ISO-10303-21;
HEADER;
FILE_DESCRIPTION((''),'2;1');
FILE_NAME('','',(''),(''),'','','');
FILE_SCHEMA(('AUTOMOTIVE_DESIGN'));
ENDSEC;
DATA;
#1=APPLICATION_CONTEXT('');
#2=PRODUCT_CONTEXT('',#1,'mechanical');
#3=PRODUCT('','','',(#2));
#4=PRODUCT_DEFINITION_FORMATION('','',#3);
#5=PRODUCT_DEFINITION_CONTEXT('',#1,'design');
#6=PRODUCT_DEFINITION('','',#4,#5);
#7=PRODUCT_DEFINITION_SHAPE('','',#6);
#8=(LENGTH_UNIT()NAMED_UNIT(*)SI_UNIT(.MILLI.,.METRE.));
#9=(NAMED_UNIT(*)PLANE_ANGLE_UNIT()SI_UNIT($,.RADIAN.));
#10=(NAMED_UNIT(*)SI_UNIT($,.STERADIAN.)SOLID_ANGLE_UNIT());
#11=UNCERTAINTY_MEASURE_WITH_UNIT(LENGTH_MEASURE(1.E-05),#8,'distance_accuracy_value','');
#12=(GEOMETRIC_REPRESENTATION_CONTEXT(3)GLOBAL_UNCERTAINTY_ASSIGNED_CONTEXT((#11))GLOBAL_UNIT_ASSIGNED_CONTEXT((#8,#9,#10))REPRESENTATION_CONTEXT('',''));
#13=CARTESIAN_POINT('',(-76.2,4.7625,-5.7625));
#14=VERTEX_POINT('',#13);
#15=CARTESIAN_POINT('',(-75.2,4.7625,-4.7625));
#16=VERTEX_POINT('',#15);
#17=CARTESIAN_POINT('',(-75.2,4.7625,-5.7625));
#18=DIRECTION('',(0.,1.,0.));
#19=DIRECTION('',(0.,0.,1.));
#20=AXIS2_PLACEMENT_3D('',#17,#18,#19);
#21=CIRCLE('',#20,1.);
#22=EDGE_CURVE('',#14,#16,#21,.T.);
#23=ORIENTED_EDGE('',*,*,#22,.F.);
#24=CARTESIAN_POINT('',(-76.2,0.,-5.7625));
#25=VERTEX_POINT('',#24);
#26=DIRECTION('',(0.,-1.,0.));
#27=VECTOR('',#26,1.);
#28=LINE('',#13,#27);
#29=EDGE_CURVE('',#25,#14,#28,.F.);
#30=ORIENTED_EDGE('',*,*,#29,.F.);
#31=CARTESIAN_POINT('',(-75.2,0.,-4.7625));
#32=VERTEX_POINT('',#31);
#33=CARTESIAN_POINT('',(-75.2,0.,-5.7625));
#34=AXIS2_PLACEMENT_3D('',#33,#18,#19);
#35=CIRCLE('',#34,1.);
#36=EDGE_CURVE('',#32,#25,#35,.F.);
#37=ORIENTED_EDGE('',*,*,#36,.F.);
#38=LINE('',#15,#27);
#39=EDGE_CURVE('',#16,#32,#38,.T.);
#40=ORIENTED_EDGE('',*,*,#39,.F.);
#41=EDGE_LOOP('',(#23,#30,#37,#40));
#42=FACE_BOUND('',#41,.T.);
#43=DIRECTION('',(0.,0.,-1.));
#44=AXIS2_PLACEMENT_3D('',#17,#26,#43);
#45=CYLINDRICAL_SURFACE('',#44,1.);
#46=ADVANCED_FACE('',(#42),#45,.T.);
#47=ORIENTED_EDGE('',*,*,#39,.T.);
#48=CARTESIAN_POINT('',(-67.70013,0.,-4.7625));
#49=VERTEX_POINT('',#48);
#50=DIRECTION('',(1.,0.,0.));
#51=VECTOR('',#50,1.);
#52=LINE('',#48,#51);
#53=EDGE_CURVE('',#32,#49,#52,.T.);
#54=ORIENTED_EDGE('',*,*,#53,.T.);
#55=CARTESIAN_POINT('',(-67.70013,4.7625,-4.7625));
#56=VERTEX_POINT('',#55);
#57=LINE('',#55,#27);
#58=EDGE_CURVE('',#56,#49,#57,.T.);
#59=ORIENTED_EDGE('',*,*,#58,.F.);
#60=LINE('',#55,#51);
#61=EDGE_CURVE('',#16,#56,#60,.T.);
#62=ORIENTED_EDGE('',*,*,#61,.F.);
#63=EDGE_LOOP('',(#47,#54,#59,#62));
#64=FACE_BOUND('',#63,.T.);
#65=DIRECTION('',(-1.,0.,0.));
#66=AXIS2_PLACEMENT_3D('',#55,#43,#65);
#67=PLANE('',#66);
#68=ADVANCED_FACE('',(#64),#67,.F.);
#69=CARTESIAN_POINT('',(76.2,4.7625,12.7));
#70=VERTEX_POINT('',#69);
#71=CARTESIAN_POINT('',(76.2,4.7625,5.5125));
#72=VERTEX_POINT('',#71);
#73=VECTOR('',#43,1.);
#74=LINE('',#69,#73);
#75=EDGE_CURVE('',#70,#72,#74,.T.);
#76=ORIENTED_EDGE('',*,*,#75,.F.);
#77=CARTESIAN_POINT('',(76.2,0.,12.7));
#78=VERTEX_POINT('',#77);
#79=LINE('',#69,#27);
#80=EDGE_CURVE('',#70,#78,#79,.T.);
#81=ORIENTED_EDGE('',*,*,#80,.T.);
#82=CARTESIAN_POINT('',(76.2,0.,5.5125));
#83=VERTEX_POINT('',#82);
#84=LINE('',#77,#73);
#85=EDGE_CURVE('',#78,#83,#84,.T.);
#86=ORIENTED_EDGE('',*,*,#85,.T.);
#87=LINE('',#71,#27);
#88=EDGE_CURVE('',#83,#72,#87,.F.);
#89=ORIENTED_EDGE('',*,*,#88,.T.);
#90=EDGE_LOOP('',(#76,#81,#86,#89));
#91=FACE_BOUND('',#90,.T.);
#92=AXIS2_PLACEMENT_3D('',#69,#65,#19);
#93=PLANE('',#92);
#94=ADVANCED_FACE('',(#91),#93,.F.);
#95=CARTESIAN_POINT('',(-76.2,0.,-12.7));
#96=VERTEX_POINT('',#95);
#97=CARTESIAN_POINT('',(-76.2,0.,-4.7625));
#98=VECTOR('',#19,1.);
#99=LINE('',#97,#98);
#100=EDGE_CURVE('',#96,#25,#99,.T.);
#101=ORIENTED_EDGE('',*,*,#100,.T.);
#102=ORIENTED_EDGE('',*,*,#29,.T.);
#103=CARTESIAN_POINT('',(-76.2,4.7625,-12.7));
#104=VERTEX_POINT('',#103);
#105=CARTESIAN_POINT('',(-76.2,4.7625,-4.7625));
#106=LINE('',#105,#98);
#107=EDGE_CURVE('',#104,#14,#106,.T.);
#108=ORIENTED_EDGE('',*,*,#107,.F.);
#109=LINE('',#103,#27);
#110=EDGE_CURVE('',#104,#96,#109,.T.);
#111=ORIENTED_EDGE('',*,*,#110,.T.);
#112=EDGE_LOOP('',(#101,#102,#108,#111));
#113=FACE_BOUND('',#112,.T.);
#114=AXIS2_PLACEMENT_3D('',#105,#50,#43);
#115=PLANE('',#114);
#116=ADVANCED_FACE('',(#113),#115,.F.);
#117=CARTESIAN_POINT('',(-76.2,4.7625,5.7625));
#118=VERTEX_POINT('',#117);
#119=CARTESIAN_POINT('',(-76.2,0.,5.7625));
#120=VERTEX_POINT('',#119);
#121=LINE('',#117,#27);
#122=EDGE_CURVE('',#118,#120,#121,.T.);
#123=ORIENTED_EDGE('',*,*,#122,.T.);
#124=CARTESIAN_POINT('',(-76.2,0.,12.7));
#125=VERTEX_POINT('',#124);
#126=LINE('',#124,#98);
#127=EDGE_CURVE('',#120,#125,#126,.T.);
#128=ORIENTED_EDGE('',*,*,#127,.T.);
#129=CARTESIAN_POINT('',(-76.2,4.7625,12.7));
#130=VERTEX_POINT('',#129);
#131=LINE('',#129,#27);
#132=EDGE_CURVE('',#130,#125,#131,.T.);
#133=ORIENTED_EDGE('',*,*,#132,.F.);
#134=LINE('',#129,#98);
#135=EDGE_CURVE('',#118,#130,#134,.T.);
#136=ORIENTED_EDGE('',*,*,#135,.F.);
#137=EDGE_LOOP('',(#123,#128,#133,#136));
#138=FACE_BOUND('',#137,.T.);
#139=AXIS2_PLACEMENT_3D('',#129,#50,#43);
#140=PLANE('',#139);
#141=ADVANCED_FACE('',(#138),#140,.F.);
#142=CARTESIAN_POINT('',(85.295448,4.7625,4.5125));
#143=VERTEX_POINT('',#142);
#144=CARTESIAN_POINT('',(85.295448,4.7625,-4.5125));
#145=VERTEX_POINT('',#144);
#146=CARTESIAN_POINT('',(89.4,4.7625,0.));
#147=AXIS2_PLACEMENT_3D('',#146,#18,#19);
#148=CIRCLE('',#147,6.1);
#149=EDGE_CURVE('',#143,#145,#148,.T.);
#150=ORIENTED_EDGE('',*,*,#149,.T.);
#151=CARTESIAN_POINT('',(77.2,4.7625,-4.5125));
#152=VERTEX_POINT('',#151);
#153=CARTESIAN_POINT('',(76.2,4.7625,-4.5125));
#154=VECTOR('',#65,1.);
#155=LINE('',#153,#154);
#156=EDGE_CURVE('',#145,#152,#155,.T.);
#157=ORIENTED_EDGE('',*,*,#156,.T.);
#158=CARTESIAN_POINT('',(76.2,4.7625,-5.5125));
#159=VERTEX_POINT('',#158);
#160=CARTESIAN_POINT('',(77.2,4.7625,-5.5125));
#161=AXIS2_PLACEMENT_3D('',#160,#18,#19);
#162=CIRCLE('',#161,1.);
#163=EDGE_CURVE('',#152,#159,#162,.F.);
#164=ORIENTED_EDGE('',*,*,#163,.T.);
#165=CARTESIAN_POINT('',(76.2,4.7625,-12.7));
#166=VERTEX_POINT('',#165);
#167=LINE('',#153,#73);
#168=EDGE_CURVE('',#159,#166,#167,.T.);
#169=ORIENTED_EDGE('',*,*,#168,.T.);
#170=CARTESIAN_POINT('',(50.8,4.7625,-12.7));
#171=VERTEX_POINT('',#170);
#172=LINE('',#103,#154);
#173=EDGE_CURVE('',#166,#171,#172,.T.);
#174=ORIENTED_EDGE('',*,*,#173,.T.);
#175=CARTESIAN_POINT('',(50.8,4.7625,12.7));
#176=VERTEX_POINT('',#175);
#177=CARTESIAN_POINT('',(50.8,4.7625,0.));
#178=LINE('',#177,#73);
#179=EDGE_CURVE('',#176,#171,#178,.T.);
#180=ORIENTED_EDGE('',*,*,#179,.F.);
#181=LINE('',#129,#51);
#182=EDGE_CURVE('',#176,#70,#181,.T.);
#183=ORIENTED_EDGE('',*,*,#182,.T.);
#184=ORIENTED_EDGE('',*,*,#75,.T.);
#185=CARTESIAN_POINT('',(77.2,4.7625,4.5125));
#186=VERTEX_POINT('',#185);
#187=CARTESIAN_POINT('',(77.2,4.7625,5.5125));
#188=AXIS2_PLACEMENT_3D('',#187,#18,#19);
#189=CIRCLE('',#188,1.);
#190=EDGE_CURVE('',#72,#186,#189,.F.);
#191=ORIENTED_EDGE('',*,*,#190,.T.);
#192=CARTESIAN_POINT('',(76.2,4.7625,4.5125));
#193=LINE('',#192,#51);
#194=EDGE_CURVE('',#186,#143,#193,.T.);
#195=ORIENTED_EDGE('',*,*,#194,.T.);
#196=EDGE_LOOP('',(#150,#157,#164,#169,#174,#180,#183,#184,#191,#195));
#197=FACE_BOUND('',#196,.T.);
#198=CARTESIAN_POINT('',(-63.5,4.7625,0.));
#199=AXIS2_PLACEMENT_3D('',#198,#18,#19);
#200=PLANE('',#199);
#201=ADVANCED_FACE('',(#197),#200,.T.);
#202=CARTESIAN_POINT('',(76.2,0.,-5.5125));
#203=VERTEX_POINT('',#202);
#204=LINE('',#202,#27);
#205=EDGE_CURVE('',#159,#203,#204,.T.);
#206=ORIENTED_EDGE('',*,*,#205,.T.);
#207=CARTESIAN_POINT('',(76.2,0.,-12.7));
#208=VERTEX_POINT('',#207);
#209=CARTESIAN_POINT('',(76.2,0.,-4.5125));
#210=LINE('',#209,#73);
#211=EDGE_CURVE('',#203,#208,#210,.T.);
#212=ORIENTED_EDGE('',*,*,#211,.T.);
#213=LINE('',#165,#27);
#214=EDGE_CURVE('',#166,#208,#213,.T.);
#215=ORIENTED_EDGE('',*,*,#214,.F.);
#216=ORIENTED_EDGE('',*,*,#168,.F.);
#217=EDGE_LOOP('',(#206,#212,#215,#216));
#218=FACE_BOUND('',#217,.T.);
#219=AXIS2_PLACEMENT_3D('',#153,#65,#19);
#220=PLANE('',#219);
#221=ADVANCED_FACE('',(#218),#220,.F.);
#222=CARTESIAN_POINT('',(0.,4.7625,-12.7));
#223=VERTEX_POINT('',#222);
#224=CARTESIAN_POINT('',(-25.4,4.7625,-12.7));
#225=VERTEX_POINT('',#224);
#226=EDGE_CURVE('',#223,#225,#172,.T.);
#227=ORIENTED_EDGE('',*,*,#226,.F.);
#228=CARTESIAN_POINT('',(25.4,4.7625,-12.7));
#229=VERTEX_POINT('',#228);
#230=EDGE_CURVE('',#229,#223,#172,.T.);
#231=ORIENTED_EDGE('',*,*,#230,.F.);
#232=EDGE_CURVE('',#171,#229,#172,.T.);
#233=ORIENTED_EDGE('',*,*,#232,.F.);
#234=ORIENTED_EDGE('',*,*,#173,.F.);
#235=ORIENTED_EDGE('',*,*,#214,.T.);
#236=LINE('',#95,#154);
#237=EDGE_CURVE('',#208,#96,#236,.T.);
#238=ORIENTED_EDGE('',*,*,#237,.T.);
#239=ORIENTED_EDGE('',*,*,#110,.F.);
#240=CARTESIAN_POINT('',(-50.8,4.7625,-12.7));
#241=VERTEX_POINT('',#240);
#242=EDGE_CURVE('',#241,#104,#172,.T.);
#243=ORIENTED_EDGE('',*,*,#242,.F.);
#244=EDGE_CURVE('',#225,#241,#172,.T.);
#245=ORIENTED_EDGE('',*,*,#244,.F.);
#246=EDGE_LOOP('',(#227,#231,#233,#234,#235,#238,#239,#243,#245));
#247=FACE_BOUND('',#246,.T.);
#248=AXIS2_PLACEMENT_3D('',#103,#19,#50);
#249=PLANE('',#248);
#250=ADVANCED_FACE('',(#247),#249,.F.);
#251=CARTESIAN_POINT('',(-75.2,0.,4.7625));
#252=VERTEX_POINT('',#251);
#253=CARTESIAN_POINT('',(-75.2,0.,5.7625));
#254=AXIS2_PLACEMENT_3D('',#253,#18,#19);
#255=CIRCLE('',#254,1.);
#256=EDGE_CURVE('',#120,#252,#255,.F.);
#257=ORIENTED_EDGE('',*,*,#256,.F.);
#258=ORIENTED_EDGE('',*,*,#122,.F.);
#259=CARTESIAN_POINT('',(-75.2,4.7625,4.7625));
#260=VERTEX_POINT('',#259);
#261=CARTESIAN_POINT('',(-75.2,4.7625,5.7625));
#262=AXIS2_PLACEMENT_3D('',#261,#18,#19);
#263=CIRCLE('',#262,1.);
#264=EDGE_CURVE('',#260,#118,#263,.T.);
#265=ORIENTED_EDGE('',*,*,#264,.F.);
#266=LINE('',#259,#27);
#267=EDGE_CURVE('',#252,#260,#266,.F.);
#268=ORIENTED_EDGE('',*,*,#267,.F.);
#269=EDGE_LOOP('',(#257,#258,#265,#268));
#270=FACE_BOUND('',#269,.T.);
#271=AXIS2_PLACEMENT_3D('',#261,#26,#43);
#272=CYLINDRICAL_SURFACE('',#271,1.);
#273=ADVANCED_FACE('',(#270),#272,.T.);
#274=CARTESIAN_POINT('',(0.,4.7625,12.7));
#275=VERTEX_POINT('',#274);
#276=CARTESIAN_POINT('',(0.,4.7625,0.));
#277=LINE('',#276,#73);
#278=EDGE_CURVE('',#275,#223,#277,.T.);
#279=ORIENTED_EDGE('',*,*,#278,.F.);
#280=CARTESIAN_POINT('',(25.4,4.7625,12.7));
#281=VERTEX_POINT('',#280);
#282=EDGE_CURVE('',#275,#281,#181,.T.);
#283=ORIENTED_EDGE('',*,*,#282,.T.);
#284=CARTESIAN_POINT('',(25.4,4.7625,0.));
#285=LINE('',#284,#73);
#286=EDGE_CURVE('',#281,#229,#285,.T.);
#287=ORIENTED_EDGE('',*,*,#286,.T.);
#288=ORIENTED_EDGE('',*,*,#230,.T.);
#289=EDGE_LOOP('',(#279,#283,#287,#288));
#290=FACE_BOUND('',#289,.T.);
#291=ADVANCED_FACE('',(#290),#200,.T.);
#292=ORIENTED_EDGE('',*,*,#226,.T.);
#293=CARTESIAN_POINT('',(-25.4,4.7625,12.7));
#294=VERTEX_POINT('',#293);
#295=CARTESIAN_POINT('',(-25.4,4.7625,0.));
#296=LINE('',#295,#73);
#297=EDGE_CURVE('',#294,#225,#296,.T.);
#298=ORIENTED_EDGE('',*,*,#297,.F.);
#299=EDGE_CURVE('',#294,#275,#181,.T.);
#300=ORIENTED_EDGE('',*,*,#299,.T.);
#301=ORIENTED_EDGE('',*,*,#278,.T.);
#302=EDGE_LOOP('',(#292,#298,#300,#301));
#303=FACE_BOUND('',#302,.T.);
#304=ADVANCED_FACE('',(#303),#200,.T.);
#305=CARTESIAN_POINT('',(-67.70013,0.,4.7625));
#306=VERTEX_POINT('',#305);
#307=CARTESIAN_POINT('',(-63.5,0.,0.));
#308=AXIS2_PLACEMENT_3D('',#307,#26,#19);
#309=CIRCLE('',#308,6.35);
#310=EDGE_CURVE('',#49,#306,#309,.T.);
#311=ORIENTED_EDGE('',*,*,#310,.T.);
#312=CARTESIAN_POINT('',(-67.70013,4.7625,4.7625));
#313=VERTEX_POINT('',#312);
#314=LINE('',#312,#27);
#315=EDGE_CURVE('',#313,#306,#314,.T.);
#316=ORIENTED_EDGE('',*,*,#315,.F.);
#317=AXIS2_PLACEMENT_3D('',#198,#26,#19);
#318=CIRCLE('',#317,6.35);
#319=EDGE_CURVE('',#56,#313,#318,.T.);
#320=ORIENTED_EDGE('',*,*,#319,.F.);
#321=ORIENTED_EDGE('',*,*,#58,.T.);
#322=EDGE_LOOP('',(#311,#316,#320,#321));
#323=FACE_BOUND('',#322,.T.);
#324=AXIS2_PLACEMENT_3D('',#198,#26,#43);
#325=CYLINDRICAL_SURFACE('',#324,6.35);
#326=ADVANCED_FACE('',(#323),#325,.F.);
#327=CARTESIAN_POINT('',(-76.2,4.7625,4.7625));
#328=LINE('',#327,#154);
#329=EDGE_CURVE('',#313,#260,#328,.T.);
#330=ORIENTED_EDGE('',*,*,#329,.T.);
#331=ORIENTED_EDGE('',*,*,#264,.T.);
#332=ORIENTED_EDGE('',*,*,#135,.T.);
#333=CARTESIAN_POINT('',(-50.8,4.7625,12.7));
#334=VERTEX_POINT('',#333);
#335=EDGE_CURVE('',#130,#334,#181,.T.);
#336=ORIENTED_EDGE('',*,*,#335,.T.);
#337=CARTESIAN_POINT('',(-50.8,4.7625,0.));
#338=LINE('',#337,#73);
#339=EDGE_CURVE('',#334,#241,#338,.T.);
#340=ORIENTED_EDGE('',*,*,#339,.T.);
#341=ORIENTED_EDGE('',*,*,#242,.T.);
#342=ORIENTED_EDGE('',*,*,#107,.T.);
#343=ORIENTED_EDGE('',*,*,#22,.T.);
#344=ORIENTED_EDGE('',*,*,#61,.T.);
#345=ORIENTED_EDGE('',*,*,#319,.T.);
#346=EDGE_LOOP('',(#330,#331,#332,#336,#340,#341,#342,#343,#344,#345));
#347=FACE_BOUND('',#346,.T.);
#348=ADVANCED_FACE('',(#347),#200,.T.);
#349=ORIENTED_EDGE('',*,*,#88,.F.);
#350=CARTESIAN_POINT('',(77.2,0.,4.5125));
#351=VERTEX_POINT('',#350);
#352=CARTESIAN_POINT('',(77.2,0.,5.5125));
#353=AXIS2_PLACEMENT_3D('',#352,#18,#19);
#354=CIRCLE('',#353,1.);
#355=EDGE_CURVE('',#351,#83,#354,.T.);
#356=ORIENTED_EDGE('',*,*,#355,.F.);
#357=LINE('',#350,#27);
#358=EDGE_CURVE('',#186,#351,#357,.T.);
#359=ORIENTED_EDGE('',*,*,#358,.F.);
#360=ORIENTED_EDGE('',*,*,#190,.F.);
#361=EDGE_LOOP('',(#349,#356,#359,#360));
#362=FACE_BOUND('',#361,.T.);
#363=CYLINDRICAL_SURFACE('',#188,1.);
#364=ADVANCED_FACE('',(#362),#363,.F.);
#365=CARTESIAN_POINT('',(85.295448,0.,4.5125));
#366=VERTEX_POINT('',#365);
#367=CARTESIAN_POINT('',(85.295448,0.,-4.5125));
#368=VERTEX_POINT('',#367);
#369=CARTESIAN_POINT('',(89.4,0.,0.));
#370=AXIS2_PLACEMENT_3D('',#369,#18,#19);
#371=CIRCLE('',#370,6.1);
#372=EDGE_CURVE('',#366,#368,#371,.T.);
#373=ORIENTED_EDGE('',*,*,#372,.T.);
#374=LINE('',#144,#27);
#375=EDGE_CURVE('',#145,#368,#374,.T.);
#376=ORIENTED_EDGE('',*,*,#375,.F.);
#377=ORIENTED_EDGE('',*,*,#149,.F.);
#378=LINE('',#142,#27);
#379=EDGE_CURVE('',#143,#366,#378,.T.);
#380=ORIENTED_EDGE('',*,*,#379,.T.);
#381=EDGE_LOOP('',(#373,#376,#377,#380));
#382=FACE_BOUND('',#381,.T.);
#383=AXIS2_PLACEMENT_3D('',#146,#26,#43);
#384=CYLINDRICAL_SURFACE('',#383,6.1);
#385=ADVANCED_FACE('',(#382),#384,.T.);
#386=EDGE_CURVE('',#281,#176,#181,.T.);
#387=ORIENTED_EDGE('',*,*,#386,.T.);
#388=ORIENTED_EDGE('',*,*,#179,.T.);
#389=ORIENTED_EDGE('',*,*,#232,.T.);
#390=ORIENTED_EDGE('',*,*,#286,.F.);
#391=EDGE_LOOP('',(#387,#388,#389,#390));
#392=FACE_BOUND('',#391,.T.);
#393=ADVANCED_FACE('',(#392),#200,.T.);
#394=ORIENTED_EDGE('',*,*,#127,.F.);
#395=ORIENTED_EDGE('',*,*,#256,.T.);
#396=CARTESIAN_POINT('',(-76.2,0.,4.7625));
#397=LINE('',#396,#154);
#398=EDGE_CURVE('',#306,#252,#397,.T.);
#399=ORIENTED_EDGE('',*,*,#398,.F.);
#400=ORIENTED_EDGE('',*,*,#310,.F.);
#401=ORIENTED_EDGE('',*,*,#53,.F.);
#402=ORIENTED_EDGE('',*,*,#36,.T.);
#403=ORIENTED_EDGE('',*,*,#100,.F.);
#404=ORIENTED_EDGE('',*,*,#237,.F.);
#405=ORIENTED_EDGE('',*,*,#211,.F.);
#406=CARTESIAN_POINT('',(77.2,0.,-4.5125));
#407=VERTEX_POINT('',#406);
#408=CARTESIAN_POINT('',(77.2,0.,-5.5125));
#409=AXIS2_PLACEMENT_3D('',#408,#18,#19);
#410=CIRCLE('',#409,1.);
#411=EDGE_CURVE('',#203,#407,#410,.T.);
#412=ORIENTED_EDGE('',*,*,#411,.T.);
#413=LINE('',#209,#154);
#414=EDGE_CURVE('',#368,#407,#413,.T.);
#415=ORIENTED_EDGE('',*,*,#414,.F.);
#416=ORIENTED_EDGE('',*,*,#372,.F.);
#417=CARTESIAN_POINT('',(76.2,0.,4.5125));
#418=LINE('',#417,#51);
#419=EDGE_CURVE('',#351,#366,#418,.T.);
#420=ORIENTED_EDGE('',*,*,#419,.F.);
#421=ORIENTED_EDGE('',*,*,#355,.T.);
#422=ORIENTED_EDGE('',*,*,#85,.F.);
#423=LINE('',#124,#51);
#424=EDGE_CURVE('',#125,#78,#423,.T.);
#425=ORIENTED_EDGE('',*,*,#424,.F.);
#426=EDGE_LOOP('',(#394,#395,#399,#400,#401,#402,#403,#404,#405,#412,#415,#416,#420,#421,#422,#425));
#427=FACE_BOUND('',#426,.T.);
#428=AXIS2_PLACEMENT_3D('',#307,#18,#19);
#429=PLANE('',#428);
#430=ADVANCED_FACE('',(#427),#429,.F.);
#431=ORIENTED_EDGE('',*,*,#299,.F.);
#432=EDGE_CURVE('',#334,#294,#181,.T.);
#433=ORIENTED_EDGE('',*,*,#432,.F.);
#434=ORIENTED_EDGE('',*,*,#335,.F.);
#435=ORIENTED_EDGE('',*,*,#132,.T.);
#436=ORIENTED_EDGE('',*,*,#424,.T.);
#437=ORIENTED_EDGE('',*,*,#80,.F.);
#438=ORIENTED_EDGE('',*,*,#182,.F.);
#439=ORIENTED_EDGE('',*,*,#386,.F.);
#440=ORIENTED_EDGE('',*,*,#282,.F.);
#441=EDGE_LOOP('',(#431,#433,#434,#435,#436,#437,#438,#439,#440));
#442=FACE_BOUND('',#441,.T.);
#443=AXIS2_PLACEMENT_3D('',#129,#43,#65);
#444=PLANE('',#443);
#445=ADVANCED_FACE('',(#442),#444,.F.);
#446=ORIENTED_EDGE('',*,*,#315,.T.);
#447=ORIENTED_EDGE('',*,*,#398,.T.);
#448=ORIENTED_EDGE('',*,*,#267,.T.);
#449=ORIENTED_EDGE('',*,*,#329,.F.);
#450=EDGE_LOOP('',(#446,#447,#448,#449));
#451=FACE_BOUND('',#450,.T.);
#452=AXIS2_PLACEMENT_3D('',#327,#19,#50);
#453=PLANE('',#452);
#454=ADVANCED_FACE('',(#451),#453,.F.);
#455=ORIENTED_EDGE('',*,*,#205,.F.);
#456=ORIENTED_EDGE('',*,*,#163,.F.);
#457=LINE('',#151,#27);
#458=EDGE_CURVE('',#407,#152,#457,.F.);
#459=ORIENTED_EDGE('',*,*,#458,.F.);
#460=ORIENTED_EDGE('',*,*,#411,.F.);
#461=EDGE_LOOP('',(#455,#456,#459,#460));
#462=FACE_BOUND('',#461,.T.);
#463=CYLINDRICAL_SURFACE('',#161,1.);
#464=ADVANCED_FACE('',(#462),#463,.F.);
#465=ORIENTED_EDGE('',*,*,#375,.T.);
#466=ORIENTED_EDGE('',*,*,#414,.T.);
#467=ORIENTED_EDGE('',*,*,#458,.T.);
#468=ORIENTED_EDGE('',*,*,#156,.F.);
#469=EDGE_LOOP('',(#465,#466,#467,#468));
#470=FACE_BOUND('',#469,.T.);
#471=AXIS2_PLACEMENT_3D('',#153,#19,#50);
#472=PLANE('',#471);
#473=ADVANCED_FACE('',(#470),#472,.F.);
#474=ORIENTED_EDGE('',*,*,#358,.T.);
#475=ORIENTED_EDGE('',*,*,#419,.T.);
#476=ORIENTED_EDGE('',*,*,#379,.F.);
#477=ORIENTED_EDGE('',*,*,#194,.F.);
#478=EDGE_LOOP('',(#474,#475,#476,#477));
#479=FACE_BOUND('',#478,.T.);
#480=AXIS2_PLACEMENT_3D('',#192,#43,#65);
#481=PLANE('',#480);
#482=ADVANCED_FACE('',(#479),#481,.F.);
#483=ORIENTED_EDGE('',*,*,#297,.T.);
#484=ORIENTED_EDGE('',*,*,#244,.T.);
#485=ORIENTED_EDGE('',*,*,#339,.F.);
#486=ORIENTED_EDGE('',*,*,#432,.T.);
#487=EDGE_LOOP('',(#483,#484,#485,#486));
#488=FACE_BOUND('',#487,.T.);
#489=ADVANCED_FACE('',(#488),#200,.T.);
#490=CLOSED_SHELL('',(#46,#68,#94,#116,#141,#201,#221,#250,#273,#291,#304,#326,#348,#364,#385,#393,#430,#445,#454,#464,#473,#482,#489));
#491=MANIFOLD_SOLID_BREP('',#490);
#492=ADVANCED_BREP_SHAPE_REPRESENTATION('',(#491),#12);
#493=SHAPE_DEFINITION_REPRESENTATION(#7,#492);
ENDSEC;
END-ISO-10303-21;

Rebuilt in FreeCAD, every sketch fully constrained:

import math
import FreeCAD as App
import Part
import Sketcher

V = App.Vector
Q = App.Units.Quantity


def edges_at(feature, points):
    """Names of the edges that pass closest to the given points."""
    edges = feature.Shape.Edges
    near = lambda p: min(range(len(edges)), key=lambda i: edges[i].distToShape(Part.Vertex(*p))[0])
    return sorted({f"Edge{near(p) + 1}" for p in points})

doc = App.newDocument("Part")
body = doc.addObject("PartDesign::Body", "Body")

sketch1 = body.newObject("Sketcher::SketchObject", "Sketch")
sketch1.AttachmentSupport = (doc.getObject("XZ_Plane"), [""])
sketch1.MapMode = "FlatFace"
sketch1.addGeometry([
    Part.LineSegment(V(-76, 13, 0), V(76, 13, 0)),
    Part.LineSegment(V(76, 13, 0), V(76, 5, 0)),
    Part.LineSegment(V(76, 5, 0), V(85, 5, 0)),
    Part.ArcOfCircle(Part.Circle(V(89, 0, 0), V(0, 0, 1), 6), math.radians(-132), math.radians(132)),
    Part.LineSegment(V(85, -5, 0), V(76, -5, 0)),
    Part.LineSegment(V(76, -5, 0), V(76, -13, 0)),
    Part.LineSegment(V(76, -13, 0), V(-76, -13, 0)),
    Part.LineSegment(V(-76, -13, 0), V(-76, -5, 0)),
    Part.LineSegment(V(-76, -5, 0), V(-68, -5, 0)),
    Part.ArcOfCircle(Part.Circle(V(-64, 0, 0), V(0, 0, 1), 6), math.radians(-131), math.radians(131)),
    Part.LineSegment(V(-68, 5, 0), V(-76, 5, 0)),
    Part.LineSegment(V(-76, 5, 0), V(-76, 13, 0)),
], False)
sketch1.addConstraint([
    Sketcher.Constraint("Coincident", 0, 2, 1, 1),
    Sketcher.Constraint("Coincident", 1, 2, 2, 1),
    Sketcher.Constraint("Coincident", 2, 2, 3, 2),
    Sketcher.Constraint("Coincident", 3, 1, 4, 1),
    Sketcher.Constraint("Coincident", 4, 2, 5, 1),
    Sketcher.Constraint("Coincident", 5, 2, 6, 1),
    Sketcher.Constraint("Coincident", 6, 2, 7, 1),
    Sketcher.Constraint("Coincident", 7, 2, 8, 1),
    Sketcher.Constraint("Coincident", 8, 2, 9, 1),
    Sketcher.Constraint("Coincident", 9, 2, 10, 1),
    Sketcher.Constraint("Coincident", 10, 2, 11, 1),
    Sketcher.Constraint("Coincident", 11, 2, 0, 1),
    Sketcher.Constraint("Horizontal", 0),
    Sketcher.Constraint("Vertical", 1),
    Sketcher.Constraint("Horizontal", 2),
    Sketcher.Constraint("Horizontal", 4),
    Sketcher.Constraint("Vertical", 5),
    Sketcher.Constraint("Horizontal", 6),
    Sketcher.Constraint("Vertical", 7),
    Sketcher.Constraint("Horizontal", 8),
    Sketcher.Constraint("Horizontal", 10),
    Sketcher.Constraint("Vertical", 11),
    Sketcher.Constraint("Symmetric", 0, 2, 6, 2, -1, 1),
    Sketcher.Constraint("Symmetric", 2, 2, 3, 1, -1),
    Sketcher.Constraint("Symmetric", 8, 2, 9, 2, -1),
    Sketcher.Constraint("Vertical", 1, 2, 4, 2),
    Sketcher.Constraint("Vertical", 7, 2, 10, 2),
    Sketcher.Constraint("DistanceX", 0, 1, 0, 2, Q("6 in")),
    Sketcher.Constraint("Radius", 9, Q("0.25 in")),
    Sketcher.Constraint("DistanceY", 6, 2, 0, 2, Q("1 in")),
    Sketcher.Constraint("DistanceX", 9, 3, -1, 1, Q("2.5 in")),
    Sketcher.Constraint("DistanceY", 7, 1, 7, 2, Q("0.3125 in")),
    Sketcher.Constraint("Radius", 3, Q("6.1 mm")),
    Sketcher.Constraint("DistanceY", 1, 2, 1, 1, Q("8.1875 mm")),
    Sketcher.Constraint("DistanceX", 2, 1, 2, 2, Q("9.095448 mm")),
])
pad1 = body.newObject("PartDesign::Pad", "Pad")
pad1.Profile = sketch1
pad1.Length = Q("0.1875 in")
pad1.Reversed = True
doc.recompute()

fillet = body.newObject("PartDesign::Fillet", "Fillet")
fillet.Base = (pad1, edges_at(pad1, [
    (76.2, 2.381, -4.513),
    (76.2, 2.381, 4.513),
    (-76.2, 2.381, 4.763),
    (-76.2, 2.381, -4.763),
]))
fillet.Radius = 1

doc.recompute()
